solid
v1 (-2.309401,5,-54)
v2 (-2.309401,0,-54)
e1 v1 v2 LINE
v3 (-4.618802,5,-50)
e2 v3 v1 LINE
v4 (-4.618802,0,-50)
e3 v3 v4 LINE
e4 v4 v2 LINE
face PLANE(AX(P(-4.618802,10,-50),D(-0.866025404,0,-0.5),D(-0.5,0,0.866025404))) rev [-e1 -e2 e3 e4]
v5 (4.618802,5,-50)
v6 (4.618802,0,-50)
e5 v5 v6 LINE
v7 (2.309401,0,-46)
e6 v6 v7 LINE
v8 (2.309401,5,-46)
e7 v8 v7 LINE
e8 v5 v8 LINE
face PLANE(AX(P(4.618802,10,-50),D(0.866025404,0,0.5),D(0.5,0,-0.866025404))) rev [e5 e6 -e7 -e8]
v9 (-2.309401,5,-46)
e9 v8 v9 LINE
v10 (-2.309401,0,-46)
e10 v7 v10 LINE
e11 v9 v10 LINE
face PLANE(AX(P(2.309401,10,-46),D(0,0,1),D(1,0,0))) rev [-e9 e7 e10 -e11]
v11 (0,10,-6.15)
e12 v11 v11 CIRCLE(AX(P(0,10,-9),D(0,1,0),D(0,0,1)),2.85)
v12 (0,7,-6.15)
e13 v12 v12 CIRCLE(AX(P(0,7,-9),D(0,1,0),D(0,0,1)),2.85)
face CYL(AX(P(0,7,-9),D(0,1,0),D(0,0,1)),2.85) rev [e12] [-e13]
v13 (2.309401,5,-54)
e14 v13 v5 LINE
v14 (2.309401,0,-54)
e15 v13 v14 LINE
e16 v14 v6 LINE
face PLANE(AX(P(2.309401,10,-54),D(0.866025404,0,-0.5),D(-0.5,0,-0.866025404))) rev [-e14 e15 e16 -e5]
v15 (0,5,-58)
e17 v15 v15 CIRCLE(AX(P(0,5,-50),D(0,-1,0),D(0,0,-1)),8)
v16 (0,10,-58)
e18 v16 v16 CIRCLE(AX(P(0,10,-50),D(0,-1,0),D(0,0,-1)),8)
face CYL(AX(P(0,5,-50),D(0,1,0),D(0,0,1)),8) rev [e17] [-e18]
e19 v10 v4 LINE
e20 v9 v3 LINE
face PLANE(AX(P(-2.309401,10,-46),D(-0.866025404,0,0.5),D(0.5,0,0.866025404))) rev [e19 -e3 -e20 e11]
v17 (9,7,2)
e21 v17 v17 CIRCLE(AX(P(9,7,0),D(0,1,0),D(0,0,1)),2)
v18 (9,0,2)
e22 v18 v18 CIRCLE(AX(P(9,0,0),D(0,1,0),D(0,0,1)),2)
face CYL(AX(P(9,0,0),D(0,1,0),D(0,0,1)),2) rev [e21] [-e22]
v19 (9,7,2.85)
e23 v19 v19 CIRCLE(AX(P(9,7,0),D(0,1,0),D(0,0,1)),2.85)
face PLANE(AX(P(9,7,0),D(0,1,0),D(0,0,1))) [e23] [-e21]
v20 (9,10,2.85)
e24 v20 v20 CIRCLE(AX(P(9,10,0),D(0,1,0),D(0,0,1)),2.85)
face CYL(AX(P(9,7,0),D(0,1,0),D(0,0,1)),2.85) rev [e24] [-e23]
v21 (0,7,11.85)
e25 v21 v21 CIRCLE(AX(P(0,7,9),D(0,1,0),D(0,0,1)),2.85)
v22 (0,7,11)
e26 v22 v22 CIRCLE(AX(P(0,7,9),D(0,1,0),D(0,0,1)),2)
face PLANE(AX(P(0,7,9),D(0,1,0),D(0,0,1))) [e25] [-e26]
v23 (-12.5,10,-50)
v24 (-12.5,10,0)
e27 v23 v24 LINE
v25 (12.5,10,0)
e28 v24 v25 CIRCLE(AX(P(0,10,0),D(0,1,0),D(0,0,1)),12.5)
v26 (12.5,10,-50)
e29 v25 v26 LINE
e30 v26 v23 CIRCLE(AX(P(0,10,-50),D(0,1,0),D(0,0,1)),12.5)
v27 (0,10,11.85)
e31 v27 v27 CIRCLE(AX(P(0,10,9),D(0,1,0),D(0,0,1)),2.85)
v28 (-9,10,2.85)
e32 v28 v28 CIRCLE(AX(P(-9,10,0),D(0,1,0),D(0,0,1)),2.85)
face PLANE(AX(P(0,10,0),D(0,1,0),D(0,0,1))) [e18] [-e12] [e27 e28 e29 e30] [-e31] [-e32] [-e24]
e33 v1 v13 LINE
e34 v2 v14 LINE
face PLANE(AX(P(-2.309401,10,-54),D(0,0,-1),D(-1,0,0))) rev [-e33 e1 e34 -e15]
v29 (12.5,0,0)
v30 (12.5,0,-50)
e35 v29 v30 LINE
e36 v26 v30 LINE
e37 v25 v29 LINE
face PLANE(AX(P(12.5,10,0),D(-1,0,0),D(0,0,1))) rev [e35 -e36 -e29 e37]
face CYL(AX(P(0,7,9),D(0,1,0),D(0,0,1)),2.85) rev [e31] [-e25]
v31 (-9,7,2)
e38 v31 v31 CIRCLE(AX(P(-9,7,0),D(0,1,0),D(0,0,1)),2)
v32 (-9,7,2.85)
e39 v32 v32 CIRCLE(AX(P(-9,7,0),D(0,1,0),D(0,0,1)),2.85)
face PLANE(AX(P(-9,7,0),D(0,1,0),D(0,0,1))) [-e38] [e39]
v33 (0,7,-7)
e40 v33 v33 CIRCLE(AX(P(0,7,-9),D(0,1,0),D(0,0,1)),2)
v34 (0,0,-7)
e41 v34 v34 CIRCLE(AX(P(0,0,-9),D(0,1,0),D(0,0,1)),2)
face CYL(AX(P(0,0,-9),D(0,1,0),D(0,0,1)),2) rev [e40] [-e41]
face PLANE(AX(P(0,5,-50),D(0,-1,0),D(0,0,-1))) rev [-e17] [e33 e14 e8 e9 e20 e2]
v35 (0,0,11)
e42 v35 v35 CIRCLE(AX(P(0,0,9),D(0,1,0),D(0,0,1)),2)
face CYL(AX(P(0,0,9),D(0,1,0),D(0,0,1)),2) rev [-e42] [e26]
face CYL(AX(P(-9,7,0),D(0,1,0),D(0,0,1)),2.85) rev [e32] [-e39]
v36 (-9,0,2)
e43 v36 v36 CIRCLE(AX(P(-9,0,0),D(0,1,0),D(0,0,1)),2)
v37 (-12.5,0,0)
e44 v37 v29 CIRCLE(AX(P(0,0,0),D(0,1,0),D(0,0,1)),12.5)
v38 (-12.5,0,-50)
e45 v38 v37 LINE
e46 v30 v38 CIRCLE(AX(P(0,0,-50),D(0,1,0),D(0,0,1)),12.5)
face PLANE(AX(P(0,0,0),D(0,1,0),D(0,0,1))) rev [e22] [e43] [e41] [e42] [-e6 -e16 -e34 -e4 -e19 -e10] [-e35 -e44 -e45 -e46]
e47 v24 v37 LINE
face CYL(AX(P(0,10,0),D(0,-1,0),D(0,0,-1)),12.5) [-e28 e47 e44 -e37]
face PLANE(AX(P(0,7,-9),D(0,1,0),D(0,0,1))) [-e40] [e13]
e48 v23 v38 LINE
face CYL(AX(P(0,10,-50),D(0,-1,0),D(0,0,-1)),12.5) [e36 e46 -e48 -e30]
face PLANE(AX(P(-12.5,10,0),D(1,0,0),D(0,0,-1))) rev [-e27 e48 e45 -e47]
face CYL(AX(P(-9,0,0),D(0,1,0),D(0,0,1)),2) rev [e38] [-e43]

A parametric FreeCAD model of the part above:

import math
import FreeCAD as App
import Part
import Sketcher

V = App.Vector
Q = App.Units.Quantity


def add_polygon(sketch, points):
    """Adds a closed chain of lines whose ends are joined by coincident constraints."""
    first, n = sketch.GeometryCount, len(points)
    for a, b in zip(points, points[1:] + points[:1]):
        sketch.addGeometry(Part.LineSegment(App.Vector(*a, 0), App.Vector(*b, 0)), False)
    for i in range(n):
        sketch.addConstraint(Sketcher.Constraint("Coincident", first + i, 2, first + (i + 1) % n, 1))

doc = App.newDocument("Part")
params = doc.addObject("Spreadsheet::Sheet", "Params")
for row, (alias, value) in enumerate([
    ("sketch1_radius", "12.5 mm"),
    ("sketch1_height", "50 mm"),
    ("pad1_length", "10 mm"),
    ("sketch2_diameter", "5.7 mm"),
    ("pocket1_length", "3 mm"),
    ("sketch3_diameter", "4 mm"),
    ("sketch4_diameter", "16 mm"),
    ("pocket3_length", "5 mm"),
    ("sketch5_diameter", "7 mm"),
], start=1):
    params.set(f"A{row}", alias)
    params.set(f"B{row}", "=" + value)
    params.setAlias(f"B{row}", alias)

body = doc.addObject("PartDesign::Body", "Body")

sketch1 = body.newObject("Sketcher::SketchObject", "Sketch")
sketch1.AttachmentSupport = (doc.getObject("XZ_Plane"), [""])
sketch1.MapMode = "FlatFace"
sketch1.addGeometry([
    Part.LineSegment(V(-12, -50, 0), V(-12, 0, 0)),
    Part.ArcOfCircle(Part.Circle(V(0, 0, 0), V(0, 0, 1), 12), math.radians(0), math.radians(180)),
    Part.LineSegment(V(12, 0, 0), V(12, -50, 0)),
    Part.ArcOfCircle(Part.Circle(V(0, -50, 0), V(0, 0, 1), 12), math.radians(180), math.radians(360)),
], False)
sketch1.addConstraint([
    Sketcher.Constraint("Tangent", 0, 2, 1, 2),
    Sketcher.Constraint("Tangent", 1, 1, 2, 1),
    Sketcher.Constraint("Tangent", 2, 2, 3, 2),
    Sketcher.Constraint("Tangent", 3, 1, 0, 1),
    Sketcher.Constraint("Vertical", 0),
    Sketcher.Constraint("Vertical", 2),
    Sketcher.Constraint("Coincident", 1, 3, -1, 1),
    Sketcher.Constraint("Radius", 1, 12.5),
    Sketcher.Constraint("DistanceY", 0, 1, 0, 2, 50.0),
])
sketch1.setExpression("Constraints[7]", "Params.sketch1_radius")
sketch1.setExpression("Constraints[8]", "Params.sketch1_height")
pad1 = body.newObject("PartDesign::Pad", "Pad")
pad1.Profile = sketch1
pad1.setExpression("Length", "Params.pad1_length")
pad1.Reversed = True

sketch2 = body.newObject("Sketcher::SketchObject", "Sketch001")
sketch2.AttachmentSupport = (doc.getObject("XZ_Plane"), [""])
sketch2.MapMode = "FlatFace"
sketch2.AttachmentOffset = App.Placement(V(0, 0, -10), App.Rotation())
sketch2.addGeometry([
    Part.Circle(V(0, -9, 0), V(0, 0, 1), 2.9),
    Part.Circle(V(9, 0, 0), V(0, 0, 1), 2.9),
    Part.Circle(V(0, 9, 0), V(0, 0, 1), 2.9),
    Part.Circle(V(-9, 0, 0), V(0, 0, 1), 2.9),
], False)
sketch2.addConstraint([
    Sketcher.Constraint("Equal", 0, 1),
    Sketcher.Constraint("Equal", 1, 2),
    Sketcher.Constraint("Equal", 2, 3),
    Sketcher.Constraint("Symmetric", 0, 3, 2, 3, -1, 1),
    Sketcher.Constraint("Symmetric", 1, 3, 3, 3, -1, 1),
    Sketcher.Constraint("PointOnObject", 0, 3, -2),
    Sketcher.Constraint("PointOnObject", 1, 3, -1),
    Sketcher.Constraint("Diameter", 0, 5.7),
    Sketcher.Constraint("DistanceY", 0, 3, -1, 1, 9.0),
    Sketcher.Constraint("DistanceX", -1, 1, 1, 3, 9.0),
])
sketch2.setExpression("Constraints[7]", "Params.sketch2_diameter")
pocket1 = body.newObject("PartDesign::Pocket", "Pocket")
pocket1.Profile = sketch2
pocket1.setExpression("Length", "Params.pocket1_length")
pocket1.Reversed = True

sketch3 = body.newObject("Sketcher::SketchObject", "Sketch002")
sketch3.AttachmentSupport = (doc.getObject("XZ_Plane"), [""])
sketch3.MapMode = "FlatFace"
sketch3.AttachmentOffset = App.Placement(V(0, 0, -10), App.Rotation())
sketch3.addGeometry([
    Part.Circle(V(0, -9, 0), V(0, 0, 1), 2),
    Part.Circle(V(9, 0, 0), V(0, 0, 1), 2),
    Part.Circle(V(0, 9, 0), V(0, 0, 1), 2),
    Part.Circle(V(-9, 0, 0), V(0, 0, 1), 2),
], False)
sketch3.addConstraint([
    Sketcher.Constraint("Equal", 0, 1),
    Sketcher.Constraint("Equal", 1, 2),
    Sketcher.Constraint("Equal", 2, 3),
    Sketcher.Constraint("Symmetric", 0, 3, 2, 3, -1, 1),
    Sketcher.Constraint("Symmetric", 1, 3, 3, 3, -1, 1),
    Sketcher.Constraint("PointOnObject", 0, 3, -2),
    Sketcher.Constraint("PointOnObject", 1, 3, -1),
    Sketcher.Constraint("Diameter", 0, 4.0),
    Sketcher.Constraint("DistanceY", 0, 3, -1, 1, 9.0),
    Sketcher.Constraint("DistanceX", -1, 1, 1, 3, 9.0),
])
sketch3.setExpression("Constraints[7]", "Params.sketch3_diameter")
pocket2 = body.newObject("PartDesign::Pocket", "Pocket001")
pocket2.Profile = sketch3
pocket2.Type = "ThroughAll"
pocket2.Reversed = True

sketch4 = body.newObject("Sketcher::SketchObject", "Sketch003")
sketch4.AttachmentSupport = (doc.getObject("XZ_Plane"), [""])
sketch4.MapMode = "FlatFace"
sketch4.AttachmentOffset = App.Placement(V(0, 0, -10), App.Rotation())
sketch4.addGeometry(Part.Circle(V(0, -50, 0), V(0, 0, 1), 8), False)
sketch4.addConstraint([
    Sketcher.Constraint("PointOnObject", 0, 3, -2),
    Sketcher.Constraint("Diameter", 0, 16.0),
    Sketcher.Constraint("DistanceY", 0, 3, -1, 1, 50.0),
])
sketch4.setExpression("Constraints[1]", "Params.sketch4_diameter")
pocket3 = body.newObject("PartDesign::Pocket", "Pocket002")
pocket3.Profile = sketch4
pocket3.setExpression("Length", "Params.pocket3_length")
pocket3.Reversed = True

sketch5 = body.newObject("Sketcher::SketchObject", "Sketch004")
sketch5.AttachmentSupport = (doc.getObject("XZ_Plane"), [""])
sketch5.MapMode = "FlatFace"
sketch5.AttachmentOffset = App.Placement(V(0, 0, -10), App.Rotation())
sketch5.addGeometry(Part.Circle(V(0, -50, 0), V(0, 0, 1), 3.5), False)
sketch5.addConstraint([
    Sketcher.Constraint("PointOnObject", 0, 3, -2),
    Sketcher.Constraint("Diameter", 0, 7.0),
    Sketcher.Constraint("DistanceY", 0, 3, -1, 1, 50.0),
])
sketch5.setExpression("Constraints[1]", "Params.sketch5_diameter")
pocket4 = body.newObject("PartDesign::Pocket", "Pocket003")
pocket4.Profile = sketch5
pocket4.Type = "ThroughAll"
pocket4.Reversed = True

sketch6 = body.newObject("Sketcher::SketchObject", "Sketch005")
sketch6.AttachmentSupport = (doc.getObject("XZ_Plane"), [""])
sketch6.MapMode = "FlatFace"
add_polygon(sketch6, [(4.6, -50), (2.3, -46), (-2.3, -46), (-4.6, -50), (-2.3, -54), (2.3, -54)])
sketch6.addConstraint([
    Sketcher.Constraint("Horizontal", 1),
    Sketcher.Constraint("Horizontal", 4),
    Sketcher.Constraint("Symmetric", 2, 2, 5, 2, -2),
    Sketcher.Constraint("Parallel", 0, 3),
    Sketcher.Constraint("Parallel", 2, 5),
    Sketcher.Constraint("Vertical", 1, 2, 3, 2),
    Sketcher.Constraint("Vertical", 0, 2, 4, 2),
    Sketcher.Constraint("Angle", 0, Q("120 deg")),
    Sketcher.Constraint("DistanceY", 0, 2, -1, 1, 46.0),
    Sketcher.Constraint("DistanceY", 2, 2, -1, 1, 50.0),
    Sketcher.Constraint("DistanceX", -1, 1, 0, 2, 2.309401),
])
pocket5 = body.newObject("PartDesign::Pocket", "Pocket004")
pocket5.Profile = sketch6
pocket5.Type = "ThroughAll"

doc.recompute()
